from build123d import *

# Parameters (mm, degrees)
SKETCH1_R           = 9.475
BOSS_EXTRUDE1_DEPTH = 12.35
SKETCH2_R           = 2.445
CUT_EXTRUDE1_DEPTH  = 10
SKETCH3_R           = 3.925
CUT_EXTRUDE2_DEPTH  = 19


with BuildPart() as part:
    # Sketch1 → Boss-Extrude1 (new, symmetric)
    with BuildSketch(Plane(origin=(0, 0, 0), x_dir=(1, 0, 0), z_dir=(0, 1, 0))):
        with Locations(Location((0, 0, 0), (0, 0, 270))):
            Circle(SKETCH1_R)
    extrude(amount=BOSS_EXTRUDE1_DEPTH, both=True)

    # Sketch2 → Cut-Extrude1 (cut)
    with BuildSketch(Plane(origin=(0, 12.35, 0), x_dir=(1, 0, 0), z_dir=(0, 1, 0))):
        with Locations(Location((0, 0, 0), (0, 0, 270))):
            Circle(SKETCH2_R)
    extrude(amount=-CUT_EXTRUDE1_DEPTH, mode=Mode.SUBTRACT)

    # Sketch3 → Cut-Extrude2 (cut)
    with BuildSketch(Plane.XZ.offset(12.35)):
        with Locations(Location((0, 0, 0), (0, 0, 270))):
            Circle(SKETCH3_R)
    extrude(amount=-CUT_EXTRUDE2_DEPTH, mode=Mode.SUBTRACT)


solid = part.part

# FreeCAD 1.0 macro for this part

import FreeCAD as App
import Part
import Sketcher

V = App.Vector

doc = App.newDocument("Part")
params = doc.addObject("Spreadsheet::Sheet", "Params")
for row, (alias, value) in enumerate([
    ("sketch1_diameter", "18.95 mm"),
    ("pad1_length", "24.7 mm"),
    ("sketch2_diameter", "4.89 mm"),
    ("pocket1_length", "10 mm"),
    ("sketch3_diameter", "7.85 mm"),
    ("pocket2_length", "19 mm"),
], start=1):
    params.set(f"A{row}", alias)
    params.set(f"B{row}", "=" + value)
    params.setAlias(f"B{row}", alias)

body = doc.addObject("PartDesign::Body", "Body")

# Sketch on XZ plane
sketch1 = body.newObject("Sketcher::SketchObject", "Sketch")
sketch1.AttachmentSupport = (doc.getObject("XZ_Plane"), [""])
sketch1.MapMode = "FlatFace"
sketch1.addGeometry(Part.Circle(V(0, 0, 0), V(0, 0, 1), 9), False)
sketch1.addConstraint(Sketcher.Constraint("Coincident", 0, 3, -1, 1))
sketch1.addConstraint(Sketcher.Constraint("Diameter", 0, 18.95))
sketch1.setExpression("Constraints[1]", "Params.sketch1_diameter")
pad1 = body.newObject("PartDesign::Pad", "Pad")
pad1.Profile = sketch1
pad1.setExpression("Length", "Params.pad1_length")
pad1.Midplane = True

# Sketch on XZ plane
sketch2 = body.newObject("Sketcher::SketchObject", "Sketch001")
sketch2.AttachmentSupport = (doc.getObject("XZ_Plane"), [""])
sketch2.MapMode = "FlatFace"
sketch2.AttachmentOffset = App.Placement(V(0, 0, -12.35), App.Rotation())
sketch2.addGeometry(Part.Circle(V(0, 0, 0), V(0, 0, 1), 2.4), False)
sketch2.addConstraint(Sketcher.Constraint("Coincident", 0, 3, -1, 1))
sketch2.addConstraint(Sketcher.Constraint("Diameter", 0, 4.89))
sketch2.setExpression("Constraints[1]", "Params.sketch2_diameter")
pocket1 = body.newObject("PartDesign::Pocket", "Pocket")
pocket1.Profile = sketch2
pocket1.setExpression("Length", "Params.pocket1_length")
pocket1.Reversed = True

# Sketch on XZ plane
sketch3 = body.newObject("Sketcher::SketchObject", "Sketch002")
sketch3.AttachmentSupport = (doc.getObject("XZ_Plane"), [""])
sketch3.MapMode = "FlatFace"
sketch3.AttachmentOffset = App.Placement(V(0, 0, 12.35), App.Rotation())
sketch3.addGeometry(Part.Circle(V(0, 0, 0), V(0, 0, 1), 3.9), False)
sketch3.addConstraint(Sketcher.Constraint("Coincident", 0, 3, -1, 1))
sketch3.addConstraint(Sketcher.Constraint("Diameter", 0, 7.85))
sketch3.setExpression("Constraints[1]", "Params.sketch3_diameter")
pocket2 = body.newObject("PartDesign::Pocket", "Pocket001")
pocket2.Profile = sketch3
pocket2.setExpression("Length", "Params.pocket2_length")

doc.recompute()
